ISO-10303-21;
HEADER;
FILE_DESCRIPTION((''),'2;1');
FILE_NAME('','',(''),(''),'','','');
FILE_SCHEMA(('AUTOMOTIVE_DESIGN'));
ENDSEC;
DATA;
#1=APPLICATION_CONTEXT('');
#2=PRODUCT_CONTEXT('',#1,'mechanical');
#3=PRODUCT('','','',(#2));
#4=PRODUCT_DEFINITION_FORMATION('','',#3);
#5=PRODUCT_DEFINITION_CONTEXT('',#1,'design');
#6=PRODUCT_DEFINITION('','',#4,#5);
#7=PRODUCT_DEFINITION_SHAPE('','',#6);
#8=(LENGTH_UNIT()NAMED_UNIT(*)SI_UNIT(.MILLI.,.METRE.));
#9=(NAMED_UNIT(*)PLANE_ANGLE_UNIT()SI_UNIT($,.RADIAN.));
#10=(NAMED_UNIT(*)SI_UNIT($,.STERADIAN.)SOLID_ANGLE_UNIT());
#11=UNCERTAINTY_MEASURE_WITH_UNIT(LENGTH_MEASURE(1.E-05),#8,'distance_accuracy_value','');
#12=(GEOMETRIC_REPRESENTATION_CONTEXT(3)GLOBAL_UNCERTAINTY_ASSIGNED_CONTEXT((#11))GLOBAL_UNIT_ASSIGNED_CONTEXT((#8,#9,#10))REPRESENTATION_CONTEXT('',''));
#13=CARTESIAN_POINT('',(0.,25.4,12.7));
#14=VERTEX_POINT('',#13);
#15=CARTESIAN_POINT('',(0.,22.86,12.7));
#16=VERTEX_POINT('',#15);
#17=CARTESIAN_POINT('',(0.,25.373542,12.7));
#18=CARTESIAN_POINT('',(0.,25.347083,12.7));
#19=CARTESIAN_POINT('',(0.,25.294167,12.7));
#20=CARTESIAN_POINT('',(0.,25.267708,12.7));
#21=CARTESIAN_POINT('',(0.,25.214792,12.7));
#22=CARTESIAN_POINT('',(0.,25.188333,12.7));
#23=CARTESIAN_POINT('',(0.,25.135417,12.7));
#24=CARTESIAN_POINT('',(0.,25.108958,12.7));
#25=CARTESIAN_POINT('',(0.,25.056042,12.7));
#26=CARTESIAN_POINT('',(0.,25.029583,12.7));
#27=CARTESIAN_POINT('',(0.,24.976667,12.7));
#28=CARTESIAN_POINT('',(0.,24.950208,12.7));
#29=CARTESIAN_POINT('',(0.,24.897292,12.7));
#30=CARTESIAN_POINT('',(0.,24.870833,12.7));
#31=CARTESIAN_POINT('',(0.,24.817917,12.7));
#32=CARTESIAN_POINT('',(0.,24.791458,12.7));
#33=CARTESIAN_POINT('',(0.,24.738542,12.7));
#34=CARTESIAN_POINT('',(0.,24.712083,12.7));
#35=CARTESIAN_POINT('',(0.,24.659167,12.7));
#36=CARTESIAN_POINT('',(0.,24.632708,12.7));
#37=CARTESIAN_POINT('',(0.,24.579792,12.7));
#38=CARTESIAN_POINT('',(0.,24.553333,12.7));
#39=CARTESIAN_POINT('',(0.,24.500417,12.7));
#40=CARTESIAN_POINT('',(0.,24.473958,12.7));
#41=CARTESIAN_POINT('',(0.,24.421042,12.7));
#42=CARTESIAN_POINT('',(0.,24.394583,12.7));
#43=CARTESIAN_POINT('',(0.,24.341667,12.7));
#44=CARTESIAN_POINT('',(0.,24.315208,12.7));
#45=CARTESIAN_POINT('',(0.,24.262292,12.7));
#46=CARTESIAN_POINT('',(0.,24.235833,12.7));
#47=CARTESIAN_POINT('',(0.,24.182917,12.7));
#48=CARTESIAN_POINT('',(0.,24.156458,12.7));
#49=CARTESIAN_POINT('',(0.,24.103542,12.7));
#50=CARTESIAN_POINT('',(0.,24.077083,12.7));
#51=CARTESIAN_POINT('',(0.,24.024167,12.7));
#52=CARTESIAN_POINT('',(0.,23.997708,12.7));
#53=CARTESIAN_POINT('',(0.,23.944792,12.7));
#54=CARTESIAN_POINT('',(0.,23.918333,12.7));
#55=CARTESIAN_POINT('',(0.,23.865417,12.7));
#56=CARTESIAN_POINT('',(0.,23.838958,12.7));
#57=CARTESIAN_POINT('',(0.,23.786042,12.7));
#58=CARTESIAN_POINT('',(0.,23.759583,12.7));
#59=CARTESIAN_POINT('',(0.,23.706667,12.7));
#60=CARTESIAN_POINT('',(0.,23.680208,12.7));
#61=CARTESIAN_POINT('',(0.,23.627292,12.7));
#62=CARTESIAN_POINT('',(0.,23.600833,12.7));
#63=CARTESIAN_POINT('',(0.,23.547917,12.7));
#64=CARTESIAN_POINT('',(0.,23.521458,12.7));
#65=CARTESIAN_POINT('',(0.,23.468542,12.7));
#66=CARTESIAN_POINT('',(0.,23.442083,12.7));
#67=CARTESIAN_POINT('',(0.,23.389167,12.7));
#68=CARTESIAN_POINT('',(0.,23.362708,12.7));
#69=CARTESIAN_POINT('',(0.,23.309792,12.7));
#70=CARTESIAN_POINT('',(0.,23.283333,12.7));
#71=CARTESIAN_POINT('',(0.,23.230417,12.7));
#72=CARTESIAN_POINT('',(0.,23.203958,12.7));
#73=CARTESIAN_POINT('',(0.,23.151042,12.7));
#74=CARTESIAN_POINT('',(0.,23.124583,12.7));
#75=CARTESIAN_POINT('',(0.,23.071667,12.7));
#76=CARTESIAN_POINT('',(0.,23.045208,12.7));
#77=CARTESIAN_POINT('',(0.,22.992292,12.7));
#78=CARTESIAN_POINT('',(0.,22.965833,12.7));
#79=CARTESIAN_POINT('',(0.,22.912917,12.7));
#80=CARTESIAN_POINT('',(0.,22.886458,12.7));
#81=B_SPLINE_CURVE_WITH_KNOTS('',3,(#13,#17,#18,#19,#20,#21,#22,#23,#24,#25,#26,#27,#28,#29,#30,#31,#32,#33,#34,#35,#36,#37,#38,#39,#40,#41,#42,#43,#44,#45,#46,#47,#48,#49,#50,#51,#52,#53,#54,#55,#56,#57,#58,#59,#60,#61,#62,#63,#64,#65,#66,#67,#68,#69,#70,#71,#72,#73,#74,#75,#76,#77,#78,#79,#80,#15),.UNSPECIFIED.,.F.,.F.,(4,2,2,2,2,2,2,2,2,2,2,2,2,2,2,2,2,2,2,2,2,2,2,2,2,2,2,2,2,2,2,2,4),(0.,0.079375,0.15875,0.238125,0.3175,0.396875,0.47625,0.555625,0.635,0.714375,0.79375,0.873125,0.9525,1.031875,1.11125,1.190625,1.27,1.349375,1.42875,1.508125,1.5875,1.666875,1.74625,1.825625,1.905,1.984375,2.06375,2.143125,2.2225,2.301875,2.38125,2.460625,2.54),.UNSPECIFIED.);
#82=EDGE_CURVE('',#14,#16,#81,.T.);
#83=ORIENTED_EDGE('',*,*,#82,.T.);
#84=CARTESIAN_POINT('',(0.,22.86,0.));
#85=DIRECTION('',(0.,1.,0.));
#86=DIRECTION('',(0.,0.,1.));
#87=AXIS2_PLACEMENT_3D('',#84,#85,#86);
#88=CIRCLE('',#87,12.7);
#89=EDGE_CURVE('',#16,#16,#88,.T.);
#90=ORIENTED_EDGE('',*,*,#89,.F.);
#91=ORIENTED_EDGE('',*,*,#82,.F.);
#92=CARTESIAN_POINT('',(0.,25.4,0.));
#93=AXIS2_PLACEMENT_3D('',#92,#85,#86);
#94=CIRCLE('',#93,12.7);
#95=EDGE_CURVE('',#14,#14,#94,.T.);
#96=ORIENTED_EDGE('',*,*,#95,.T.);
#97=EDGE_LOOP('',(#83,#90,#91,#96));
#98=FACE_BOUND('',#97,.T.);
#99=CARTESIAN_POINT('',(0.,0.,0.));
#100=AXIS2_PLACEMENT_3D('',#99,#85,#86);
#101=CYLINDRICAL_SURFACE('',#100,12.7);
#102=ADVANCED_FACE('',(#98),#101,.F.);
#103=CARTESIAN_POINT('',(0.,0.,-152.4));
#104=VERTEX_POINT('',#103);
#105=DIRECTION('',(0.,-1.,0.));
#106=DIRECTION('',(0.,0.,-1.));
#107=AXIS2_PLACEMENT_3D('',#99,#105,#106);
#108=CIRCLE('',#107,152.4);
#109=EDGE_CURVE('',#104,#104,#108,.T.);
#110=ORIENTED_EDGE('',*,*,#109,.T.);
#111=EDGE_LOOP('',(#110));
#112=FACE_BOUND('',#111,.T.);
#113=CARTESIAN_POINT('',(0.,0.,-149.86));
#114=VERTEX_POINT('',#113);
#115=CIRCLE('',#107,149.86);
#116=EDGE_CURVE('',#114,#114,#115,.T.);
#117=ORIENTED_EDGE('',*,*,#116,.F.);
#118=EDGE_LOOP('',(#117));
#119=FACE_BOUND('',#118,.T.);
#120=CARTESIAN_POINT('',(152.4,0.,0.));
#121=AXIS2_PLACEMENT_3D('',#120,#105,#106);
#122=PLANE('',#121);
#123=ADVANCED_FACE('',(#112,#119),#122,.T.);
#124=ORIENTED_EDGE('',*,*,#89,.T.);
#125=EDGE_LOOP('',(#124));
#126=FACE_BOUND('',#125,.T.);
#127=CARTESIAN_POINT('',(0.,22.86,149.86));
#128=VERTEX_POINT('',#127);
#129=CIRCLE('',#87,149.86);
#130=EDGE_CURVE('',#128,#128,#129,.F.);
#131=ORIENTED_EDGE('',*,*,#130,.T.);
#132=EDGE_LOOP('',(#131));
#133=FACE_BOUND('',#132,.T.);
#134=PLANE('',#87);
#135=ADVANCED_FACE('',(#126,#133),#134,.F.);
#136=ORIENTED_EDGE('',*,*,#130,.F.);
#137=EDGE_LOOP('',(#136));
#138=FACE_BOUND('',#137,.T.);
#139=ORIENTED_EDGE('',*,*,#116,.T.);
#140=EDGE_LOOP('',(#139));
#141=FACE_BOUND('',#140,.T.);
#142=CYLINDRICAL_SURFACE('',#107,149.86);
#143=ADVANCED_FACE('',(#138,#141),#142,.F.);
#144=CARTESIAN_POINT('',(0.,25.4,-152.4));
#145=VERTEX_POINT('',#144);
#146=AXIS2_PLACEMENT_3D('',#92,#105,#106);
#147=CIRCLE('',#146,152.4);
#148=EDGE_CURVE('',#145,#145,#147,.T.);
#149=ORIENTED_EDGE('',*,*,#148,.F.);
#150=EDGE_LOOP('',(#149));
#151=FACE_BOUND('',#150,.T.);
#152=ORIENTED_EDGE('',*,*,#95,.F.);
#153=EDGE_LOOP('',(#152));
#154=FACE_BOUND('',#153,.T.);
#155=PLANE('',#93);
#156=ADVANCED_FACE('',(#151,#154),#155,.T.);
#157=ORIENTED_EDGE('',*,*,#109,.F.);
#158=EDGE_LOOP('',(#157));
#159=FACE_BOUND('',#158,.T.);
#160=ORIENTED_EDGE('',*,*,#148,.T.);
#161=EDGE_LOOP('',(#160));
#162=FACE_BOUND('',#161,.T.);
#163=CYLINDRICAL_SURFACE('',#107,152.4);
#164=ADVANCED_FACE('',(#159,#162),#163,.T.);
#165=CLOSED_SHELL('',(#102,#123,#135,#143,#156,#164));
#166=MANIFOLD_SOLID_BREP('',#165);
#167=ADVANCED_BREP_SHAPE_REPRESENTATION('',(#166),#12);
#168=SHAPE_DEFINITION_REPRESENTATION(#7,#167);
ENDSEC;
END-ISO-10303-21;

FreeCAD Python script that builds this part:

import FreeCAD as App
import Part
import Sketcher
Q = App.Units.Quantity


def faces_at(feature, points):
    """Names of the faces that lie closest to the given points."""
    faces = feature.Shape.Faces
    near = lambda p: min(range(len(faces)), key=lambda i: faces[i].distToShape(Part.Vertex(*p))[0])
    return sorted({f"Face{near(p) + 1}" for p in points})

doc = App.newDocument("Part")
body = doc.addObject("PartDesign::Body", "Body")

# Sketch on XY plane
sketch1 = body.newObject("Sketcher::SketchObject", "Sketch")
sketch1.AttachmentSupport = (doc.getObject("XY_Plane"), [""])
sketch1.MapMode = "FlatFace"
sketch1.addGeometry(Part.LineSegment(App.Vector(0, 25, 0), App.Vector(0, 0, 0)), False)
sketch1.addGeometry(Part.LineSegment(App.Vector(0, 0, 0), App.Vector(152, 0, 0)), False)
sketch1.addGeometry(Part.LineSegment(App.Vector(152, 0, 0), App.Vector(152, 25, 0)), False)
sketch1.addGeometry(Part.LineSegment(App.Vector(152, 25, 0), App.Vector(0, 25, 0)), False)
sketch1.addConstraint(Sketcher.Constraint("Coincident", 0, 2, 1, 1))
sketch1.addConstraint(Sketcher.Constraint("Coincident", 1, 2, 2, 1))
sketch1.addConstraint(Sketcher.Constraint("Coincident", 2, 2, 3, 1))
sketch1.addConstraint(Sketcher.Constraint("Coincident", 3, 2, 0, 1))
sketch1.addConstraint(Sketcher.Constraint("Vertical", 0))
sketch1.addConstraint(Sketcher.Constraint("Horizontal", 1))
sketch1.addConstraint(Sketcher.Constraint("Vertical", 2))
sketch1.addConstraint(Sketcher.Constraint("Horizontal", 3))
sketch1.addConstraint(Sketcher.Constraint("Coincident", 0, 2, -1, 1))
sketch1.addConstraint(Sketcher.Constraint("DistanceX", 1, 1, 1, 2, Q("6 in")))
sketch1.addConstraint(Sketcher.Constraint("DistanceY", 0, 2, 0, 1, Q("1 in")))
revolution = body.newObject("PartDesign::Revolution", "Revolution")
revolution.Profile = sketch1
revolution.ReferenceAxis = (sketch1, ["V_Axis"])
revolution.Angle = 360
doc.recompute()

thickness = body.newObject("PartDesign::Thickness", "Thickness")
thickness.Base = (revolution, faces_at(revolution, [(0, 0, 0)]))
thickness.Value = Q("0.1 in")
thickness.Reversed = True
thickness.Join = "Intersection"

# Sketch on XZ plane
sketch2 = body.newObject("Sketcher::SketchObject", "Sketch001")
sketch2.AttachmentSupport = (doc.getObject("XZ_Plane"), [""])
sketch2.MapMode = "FlatFace"
sketch2.AttachmentOffset = App.Placement(App.Vector(0, 0, -1 * 25.4), App.Rotation())
sketch2.addGeometry(Part.Circle(App.Vector(0, 0, 0), App.Vector(0, 0, 1), 13), False)
sketch2.addConstraint(Sketcher.Constraint("Coincident", 0, 3, -1, 1))
sketch2.addConstraint(Sketcher.Constraint("Diameter", 0, Q("1 in")))
pocket1 = body.newObject("PartDesign::Pocket", "Pocket")
pocket1.Profile = sketch2
pocket1.Type = "ThroughAll"
pocket1.Reversed = True

doc.recompute()
